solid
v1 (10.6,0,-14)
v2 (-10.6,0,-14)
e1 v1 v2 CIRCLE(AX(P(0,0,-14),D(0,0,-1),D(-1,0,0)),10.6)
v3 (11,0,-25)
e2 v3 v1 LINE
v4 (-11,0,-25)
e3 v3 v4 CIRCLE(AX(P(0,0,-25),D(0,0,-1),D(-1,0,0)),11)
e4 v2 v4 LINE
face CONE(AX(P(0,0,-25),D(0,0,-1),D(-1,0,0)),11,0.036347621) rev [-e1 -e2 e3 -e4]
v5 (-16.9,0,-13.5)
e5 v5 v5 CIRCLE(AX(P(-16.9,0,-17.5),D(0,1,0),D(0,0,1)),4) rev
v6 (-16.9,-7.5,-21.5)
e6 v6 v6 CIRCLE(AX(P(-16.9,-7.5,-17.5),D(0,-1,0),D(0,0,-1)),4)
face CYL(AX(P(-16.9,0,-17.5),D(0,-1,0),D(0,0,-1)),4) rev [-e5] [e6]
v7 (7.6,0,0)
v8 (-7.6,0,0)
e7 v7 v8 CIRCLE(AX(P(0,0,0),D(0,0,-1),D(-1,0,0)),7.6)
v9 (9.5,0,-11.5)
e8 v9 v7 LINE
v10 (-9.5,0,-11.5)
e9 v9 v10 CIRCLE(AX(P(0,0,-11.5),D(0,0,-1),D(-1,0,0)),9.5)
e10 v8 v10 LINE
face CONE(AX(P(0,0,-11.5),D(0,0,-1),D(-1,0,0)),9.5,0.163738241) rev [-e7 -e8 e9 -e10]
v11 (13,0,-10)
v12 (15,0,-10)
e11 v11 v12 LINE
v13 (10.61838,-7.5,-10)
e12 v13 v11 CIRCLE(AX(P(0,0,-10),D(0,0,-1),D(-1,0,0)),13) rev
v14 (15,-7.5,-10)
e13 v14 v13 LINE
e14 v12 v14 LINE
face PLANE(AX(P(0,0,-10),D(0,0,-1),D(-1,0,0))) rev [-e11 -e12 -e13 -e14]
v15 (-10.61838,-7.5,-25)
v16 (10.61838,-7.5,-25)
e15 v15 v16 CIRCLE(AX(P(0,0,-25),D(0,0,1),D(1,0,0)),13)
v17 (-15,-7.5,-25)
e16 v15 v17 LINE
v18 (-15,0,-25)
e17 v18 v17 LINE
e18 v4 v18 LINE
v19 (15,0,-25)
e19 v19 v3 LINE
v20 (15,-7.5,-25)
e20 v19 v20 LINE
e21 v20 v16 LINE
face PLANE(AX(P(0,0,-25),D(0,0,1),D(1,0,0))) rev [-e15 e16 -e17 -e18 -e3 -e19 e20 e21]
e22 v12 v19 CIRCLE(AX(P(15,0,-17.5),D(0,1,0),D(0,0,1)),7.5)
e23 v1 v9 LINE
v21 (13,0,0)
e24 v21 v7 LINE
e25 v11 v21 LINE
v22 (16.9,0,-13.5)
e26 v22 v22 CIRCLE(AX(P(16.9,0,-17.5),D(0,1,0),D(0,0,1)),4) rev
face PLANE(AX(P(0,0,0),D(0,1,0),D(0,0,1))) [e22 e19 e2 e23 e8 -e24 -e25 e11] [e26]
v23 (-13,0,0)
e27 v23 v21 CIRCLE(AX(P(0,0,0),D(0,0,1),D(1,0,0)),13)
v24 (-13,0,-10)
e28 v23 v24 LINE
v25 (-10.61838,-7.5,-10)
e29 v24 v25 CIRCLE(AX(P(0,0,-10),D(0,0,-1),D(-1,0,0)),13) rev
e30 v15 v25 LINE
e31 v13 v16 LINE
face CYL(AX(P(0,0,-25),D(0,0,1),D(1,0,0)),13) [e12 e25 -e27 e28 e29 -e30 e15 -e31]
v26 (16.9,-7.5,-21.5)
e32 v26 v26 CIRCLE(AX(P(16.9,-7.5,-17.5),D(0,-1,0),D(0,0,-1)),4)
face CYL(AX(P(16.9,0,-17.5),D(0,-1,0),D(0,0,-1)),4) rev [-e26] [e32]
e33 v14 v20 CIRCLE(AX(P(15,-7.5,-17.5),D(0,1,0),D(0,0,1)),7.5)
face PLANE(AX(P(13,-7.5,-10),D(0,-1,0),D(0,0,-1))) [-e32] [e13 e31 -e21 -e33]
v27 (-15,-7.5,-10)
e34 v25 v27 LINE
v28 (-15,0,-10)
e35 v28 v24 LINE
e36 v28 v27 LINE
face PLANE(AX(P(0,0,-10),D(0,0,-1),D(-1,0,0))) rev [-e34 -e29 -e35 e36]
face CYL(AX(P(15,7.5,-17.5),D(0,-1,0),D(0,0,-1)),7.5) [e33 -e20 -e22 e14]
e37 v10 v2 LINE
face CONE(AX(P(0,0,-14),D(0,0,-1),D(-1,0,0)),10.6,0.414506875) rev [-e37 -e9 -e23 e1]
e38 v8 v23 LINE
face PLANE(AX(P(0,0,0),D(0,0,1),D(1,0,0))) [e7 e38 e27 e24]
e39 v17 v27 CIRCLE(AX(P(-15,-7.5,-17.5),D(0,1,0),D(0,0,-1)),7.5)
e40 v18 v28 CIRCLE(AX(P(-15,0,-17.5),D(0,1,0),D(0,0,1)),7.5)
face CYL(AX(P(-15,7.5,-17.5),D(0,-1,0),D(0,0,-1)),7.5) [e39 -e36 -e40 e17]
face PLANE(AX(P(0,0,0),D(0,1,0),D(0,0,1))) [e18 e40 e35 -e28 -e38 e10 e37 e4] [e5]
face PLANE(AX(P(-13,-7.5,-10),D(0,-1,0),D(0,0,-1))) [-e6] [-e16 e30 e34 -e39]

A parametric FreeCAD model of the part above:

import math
import FreeCAD as App
import Part
import Sketcher

doc = App.newDocument("Part")
body = doc.addObject("PartDesign::Body", "Body")

# Sketch on XY plane
sketch1 = doc.addObject("Sketcher::SketchObject", "Sketch")
body.addObject(sketch1)
sketch1.AttachmentSupport = (doc.XY_Plane, [""])
sketch1.MapMode = "FlatFace"
sketch1.addGeometry(Part.Circle(App.Vector(0, 0, 0), App.Vector(0, 0, 1), 13), False)
sketch1.addConstraint([
    Sketcher.Constraint("Coincident", 0, 3, -1, 1),
    Sketcher.Constraint("Diameter", 0, 26.0),
])
pad1 = doc.addObject("PartDesign::Pad", "Pad")
body.addObject(pad1)
pad1.Profile = sketch1
pad1.Length = 25
pad1.Reversed = True

# Sketch on YZ plane
sketch2 = doc.addObject("Sketcher::SketchObject", "Sketch001")
body.addObject(sketch2)
sketch2.AttachmentSupport = (doc.YZ_Plane, [""])
sketch2.MapMode = "FlatFace"
sketch2.addGeometry([
    Part.LineSegment(App.Vector(7.6, 0, 0), App.Vector(0, 0, 0)),  # 0
    Part.LineSegment(App.Vector(0, 0, 0), App.Vector(0, -25, 0)),  # 1
    Part.LineSegment(App.Vector(0, -25, 0), App.Vector(11, -25, 0)),  # 2
    Part.LineSegment(App.Vector(11, -25, 0), App.Vector(10.6, -14, 0)),  # 3
    Part.LineSegment(App.Vector(10.6, -14, 0), App.Vector(9.5, -11.5, 0)),  # 4
    Part.LineSegment(App.Vector(9.5, -11.5, 0), App.Vector(7.6, 0, 0)),  # 5
], False)
sketch2.addConstraint([
    Sketcher.Constraint("Coincident", 0, 2, 1, 1),
    Sketcher.Constraint("Coincident", 1, 2, 2, 1),
    Sketcher.Constraint("Coincident", 2, 2, 3, 1),
    Sketcher.Constraint("Coincident", 3, 2, 4, 1),
    Sketcher.Constraint("Coincident", 4, 2, 5, 1),
    Sketcher.Constraint("Coincident", 5, 2, 0, 1),
    Sketcher.Constraint("Horizontal", 0),
    Sketcher.Constraint("Vertical", 1),
    Sketcher.Constraint("Horizontal", 2),
    Sketcher.Constraint("Coincident", 0, 2, -1, 1),
    Sketcher.Constraint("DistanceX", 2, 1, 2, 2, 11.0),
    Sketcher.Constraint("DistanceY", 1, 2, 1, 1, 25.0),
    Sketcher.Constraint("DistanceX", 0, 2, 0, 1, 7.6),
    Sketcher.Constraint("DistanceY", 3, 2, -1, 1, 14.0),
    Sketcher.Constraint("DistanceX", 5, 2, 3, 2, 3.0),
    Sketcher.Constraint("DistanceX", -1, 1, 4, 2, 9.5),
    Sketcher.Constraint("DistanceY", 4, 2, -1, 1, 11.5),
])
groove = doc.addObject("PartDesign::Groove", "Groove")
body.addObject(groove)
groove.Profile = sketch2
groove.ReferenceAxis = (sketch2, ["V_Axis"])
groove.Angle = 360
body2 = doc.addObject("PartDesign::Body", "Body001")

# Sketch on XZ plane
sketch3 = doc.addObject("Sketcher::SketchObject", "Sketch002")
body2.addObject(sketch3)
sketch3.AttachmentSupport = (doc.getObject("XZ_Plane001"), [""])
sketch3.MapMode = "FlatFace"
sketch3.addGeometry([
    Part.LineSegment(App.Vector(-13, -10, 0), App.Vector(-13, -25, 0)),
    Part.LineSegment(App.Vector(-13, -25, 0), App.Vector(-15, -25, 0)),
    Part.ArcOfCircle(Part.Circle(App.Vector(-15, -17.5, 0), App.Vector(0, 0, 1), 7.5), math.radians(90), math.radians(270)),
    Part.LineSegment(App.Vector(-15, -10, 0), App.Vector(-13, -10, 0)),
], False)
sketch3.addConstraint([
    Sketcher.Constraint("Coincident", 0, 2, 1, 1),
    Sketcher.Constraint("Tangent", 1, 2, 2, 2),
    Sketcher.Constraint("Tangent", 2, 1, 3, 1),
    Sketcher.Constraint("Coincident", 3, 2, 0, 1),
    Sketcher.Constraint("Vertical", 0),
    Sketcher.Constraint("Horizontal", 1),
    Sketcher.Constraint("Horizontal", 3),
    Sketcher.Constraint("Radius", 2, 7.5),
    Sketcher.Constraint("DistanceX", 1, 2, 1, 1, 2.0),
    Sketcher.Constraint("DistanceX", 2, 3, -1, 1, 15.0),
    Sketcher.Constraint("DistanceY", 0, 2, -1, 1, 25.0),
])
pad2 = doc.addObject("PartDesign::Pad", "Pad001")
body2.addObject(pad2)
pad2.Profile = sketch3
pad2.Length = 15
pad2.Midplane = True
body3 = doc.addObject("PartDesign::Body", "Body002")

# Sketch on XZ plane
sketch4 = doc.addObject("Sketcher::SketchObject", "Sketch003")
body3.addObject(sketch4)
sketch4.AttachmentSupport = (doc.getObject("XZ_Plane002"), [""])
sketch4.MapMode = "FlatFace"
sketch4.addGeometry([
    Part.LineSegment(App.Vector(15, -25, 0), App.Vector(13, -25, 0)),
    Part.LineSegment(App.Vector(13, -25, 0), App.Vector(13, -10, 0)),
    Part.LineSegment(App.Vector(13, -10, 0), App.Vector(15, -10, 0)),
    Part.ArcOfCircle(Part.Circle(App.Vector(15, -17.5, 0), App.Vector(0, 0, 1), 7.5), math.radians(-90), math.radians(90)),
], False)
sketch4.addConstraint([
    Sketcher.Constraint("Coincident", 0, 2, 1, 1),
    Sketcher.Constraint("Coincident", 1, 2, 2, 1),
    Sketcher.Constraint("Tangent", 2, 2, 3, 2),
    Sketcher.Constraint("Tangent", 3, 1, 0, 1),
    Sketcher.Constraint("Horizontal", 0),
    Sketcher.Constraint("Vertical", 1),
    Sketcher.Constraint("Horizontal", 2),
    Sketcher.Constraint("Radius", 3, 7.5),
    Sketcher.Constraint("DistanceX", 0, 2, 0, 1, 2.0),
    Sketcher.Constraint("DistanceX", -1, 1, 3, 3, 15.0),
    Sketcher.Constraint("DistanceY", 0, 2, -1, 1, 25.0),
])
pad3 = doc.addObject("PartDesign::Pad", "Pad002")
body3.addObject(pad3)
pad3.Profile = sketch4
pad3.Length = 15
pad3.Midplane = True
body.AllowCompound = True
doc.recompute()

boolean = doc.addObject("PartDesign::Boolean", "Boolean")
body.addObject(boolean)
boolean.Type = "Fuse"
boolean.addObjects([body2])
doc.recompute()

boolean2 = doc.addObject("PartDesign::Boolean", "Boolean001")
body.addObject(boolean2)
boolean2.Type = "Fuse"
boolean2.addObjects([body3])

# Sketch on XY plane
sketch5 = doc.addObject("Sketcher::SketchObject", "Sketch004")
body.addObject(sketch5)
sketch5.AttachmentSupport = (doc.XY_Plane, [""])
sketch5.MapMode = "FlatFace"
sketch5.AttachmentOffset = App.Placement(App.Vector(0, 0, -25), App.Rotation())
sketch5.addGeometry([
    Part.LineSegment(App.Vector(13, 7.5, 0), App.Vector(13, -7.5, 0)),  # 0
    Part.LineSegment(App.Vector(13, -7.5, 0), App.Vector(8, -7.5, 0)),  # 1
    Part.ArcOfCircle(Part.Circle(App.Vector(0, 0, 0), App.Vector(0, 0, 1), 11), math.radians(-43), math.radians(43)),  # 2
    Part.LineSegment(App.Vector(8, 7.5, 0), App.Vector(13, 7.5, 0)),  # 3
    Part.LineSegment(App.Vector(-13, -7.5, 0), App.Vector(-13, 7.5, 0)),  # 4
    Part.LineSegment(App.Vector(-13, 7.5, 0), App.Vector(-8, 7.5, 0)),  # 5
    Part.ArcOfCircle(Part.Circle(App.Vector(0, 0, 0), App.Vector(0, 0, 1), 11), math.radians(137), math.radians(223)),  # 6
    Part.LineSegment(App.Vector(-8, -7.5, 0), App.Vector(-13, -7.5, 0)),  # 7
], False)
sketch5.addConstraint([
    Sketcher.Constraint("Coincident", 0, 2, 1, 1),
    Sketcher.Constraint("Coincident", 1, 2, 2, 1),
    Sketcher.Constraint("Coincident", 2, 2, 3, 1),
    Sketcher.Constraint("Coincident", 3, 2, 0, 1),
    Sketcher.Constraint("Coincident", 4, 2, 5, 1),
    Sketcher.Constraint("Coincident", 5, 2, 6, 1),
    Sketcher.Constraint("Coincident", 6, 2, 7, 1),
    Sketcher.Constraint("Coincident", 7, 2, 4, 1),
    Sketcher.Constraint("Vertical", 0),
    Sketcher.Constraint("Horizontal", 1),
    Sketcher.Constraint("Horizontal", 3),
    Sketcher.Constraint("Vertical", 4),
    Sketcher.Constraint("Horizontal", 5),
    Sketcher.Constraint("Horizontal", 7),
    Sketcher.Constraint("Coincident", 2, 3, -1, 1),
    Sketcher.Constraint("Coincident", 6, 3, -1, 1),
    Sketcher.Constraint("Equal", 2, 6),
    Sketcher.Constraint("Symmetric", 0, 2, 4, 2, -1, 1),
    Sketcher.Constraint("Horizontal", 3, 2, 4, 2),
    Sketcher.Constraint("Horizontal", 1, 2, 6, 2),
    Sketcher.Constraint("Radius", 2, 11.0),
    Sketcher.Constraint("DistanceY", 0, 2, 0, 1, 15.0),
    Sketcher.Constraint("DistanceX", -1, 1, 0, 2, 13.0),
])
pad4 = doc.addObject("PartDesign::Pad", "Pad003")
body.addObject(pad4)
pad4.Profile = sketch5
pad4.Length = 15

# Sketch on XZ plane
sketch6 = doc.addObject("Sketcher::SketchObject", "Sketch005")
body.addObject(sketch6)
sketch6.AttachmentSupport = (doc.XZ_Plane, [""])
sketch6.MapMode = "FlatFace"
sketch6.AttachmentOffset = App.Placement(App.Vector(0, 0, -7.5), App.Rotation())
sketch6.addGeometry([
    Part.Circle(App.Vector(16.9, -17.5, 0), App.Vector(0, 0, 1), 3),
    Part.Circle(App.Vector(-16.9, -17.5, 0), App.Vector(0, 0, 1), 3),
], False)
sketch6.addConstraint([
    Sketcher.Constraint("Equal", 0, 1),
    Sketcher.Constraint("Symmetric", 0, 3, 1, 3, -2),
    Sketcher.Constraint("Diameter", 0, 6.0),
    Sketcher.Constraint("DistanceX", -1, 1, 0, 3, 16.9),
    Sketcher.Constraint("DistanceY", 0, 3, -1, 1, 17.5),
])
pocket1 = doc.addObject("PartDesign::Pocket", "Pocket")
body.addObject(pocket1)
pocket1.Profile = sketch6
pocket1.Type = "ThroughAll"
pocket1.Reversed = True

# Sketch on XZ plane
sketch7 = doc.addObject("Sketcher::SketchObject", "Sketch006")
body.addObject(sketch7)
sketch7.AttachmentSupport = (doc.XZ_Plane, [""])
sketch7.MapMode = "FlatFace"
sketch7.AttachmentOffset = App.Placement(App.Vector(0, 0, -7.5), App.Rotation())
sketch7.addGeometry([
    Part.Circle(App.Vector(-16.9, -17.5, 0), App.Vector(0, 0, 1), 4.5),
    Part.Circle(App.Vector(16.9, -17.5, 0), App.Vector(0, 0, 1), 4.5),
], False)
sketch7.addConstraint([
    Sketcher.Constraint("Equal", 0, 1),
    Sketcher.Constraint("Symmetric", 0, 3, 1, 3, -2),
    Sketcher.Constraint("Diameter", 0, 8.9),
    Sketcher.Constraint("DistanceX", 0, 3, -1, 1, 16.9),
    Sketcher.Constraint("DistanceY", 0, 3, -1, 1, 17.5),
])
pocket2 = doc.addObject("PartDesign::Pocket", "Pocket001")
body.addObject(pocket2)
pocket2.Profile = sketch7
pocket2.Length = 3
pocket2.Reversed = True

# Sketch on XZ plane
sketch8 = doc.addObject("Sketcher::SketchObject", "Sketch007")
body.addObject(sketch8)
sketch8.AttachmentSupport = (doc.XZ_Plane, [""])
sketch8.MapMode = "FlatFace"
sketch8.AttachmentOffset = App.Placement(App.Vector(0, 0, 7.5), App.Rotation())
sketch8.addGeometry([
    Part.Circle(App.Vector(-16.9, -17.5, 0), App.Vector(0, 0, 1), 4),
    Part.Circle(App.Vector(16.9, -17.5, 0), App.Vector(0, 0, 1), 4),
], False)
sketch8.addConstraint([
    Sketcher.Constraint("Equal", 0, 1),
    Sketcher.Constraint("Symmetric", 0, 3, 1, 3, -2),
    Sketcher.Constraint("Diameter", 0, 8.0),
    Sketcher.Constraint("DistanceX", 0, 3, -1, 1, 16.9),
    Sketcher.Constraint("DistanceY", 0, 3, -1, 1, 17.5),
])
pocket3 = doc.addObject("PartDesign::Pocket", "Pocket002")
body.addObject(pocket3)
pocket3.Profile = sketch8
pocket3.Length = 7.5

# Sketch on XZ plane
sketch9 = doc.addObject("Sketcher::SketchObject", "Sketch008")
body.addObject(sketch9)
sketch9.AttachmentSupport = (doc.XZ_Plane, [""])
sketch9.MapMode = "FlatFace"
sketch9.addGeometry([
    Part.LineSegment(App.Vector(-25, -39, 0), App.Vector(-25, 11, 0)),
    Part.LineSegment(App.Vector(-25, 11, 0), App.Vector(25, 11, 0)),
    Part.LineSegment(App.Vector(25, 11, 0), App.Vector(25, -39, 0)),
    Part.LineSegment(App.Vector(25, -39, 0), App.Vector(-25, -39, 0)),
], False)
sketch9.addConstraint([
    Sketcher.Constraint("Coincident", 0, 2, 1, 1),
    Sketcher.Constraint("Coincident", 1, 2, 2, 1),
    Sketcher.Constraint("Coincident", 2, 2, 3, 1),
    Sketcher.Constraint("Coincident", 3, 2, 0, 1),
    Sketcher.Constraint("Vertical", 0),
    Sketcher.Constraint("Horizontal", 1),
    Sketcher.Constraint("Vertical", 2),
    Sketcher.Constraint("Horizontal", 3),
    Sketcher.Constraint("Equal", 3, 0),
    Sketcher.Constraint("DistanceX", 1, 1, 1, 2, 50.0),
    Sketcher.Constraint("DistanceX", 0, 2, -1, 1, 25.0),
    Sketcher.Constraint("DistanceY", -1, 1, 0, 2, 10.982359),
])
pocket4 = doc.addObject("PartDesign::Pocket", "Pocket003")
body.addObject(pocket4)
pocket4.Profile = sketch9
pocket4.Type = "ThroughAll"

doc.recompute()
